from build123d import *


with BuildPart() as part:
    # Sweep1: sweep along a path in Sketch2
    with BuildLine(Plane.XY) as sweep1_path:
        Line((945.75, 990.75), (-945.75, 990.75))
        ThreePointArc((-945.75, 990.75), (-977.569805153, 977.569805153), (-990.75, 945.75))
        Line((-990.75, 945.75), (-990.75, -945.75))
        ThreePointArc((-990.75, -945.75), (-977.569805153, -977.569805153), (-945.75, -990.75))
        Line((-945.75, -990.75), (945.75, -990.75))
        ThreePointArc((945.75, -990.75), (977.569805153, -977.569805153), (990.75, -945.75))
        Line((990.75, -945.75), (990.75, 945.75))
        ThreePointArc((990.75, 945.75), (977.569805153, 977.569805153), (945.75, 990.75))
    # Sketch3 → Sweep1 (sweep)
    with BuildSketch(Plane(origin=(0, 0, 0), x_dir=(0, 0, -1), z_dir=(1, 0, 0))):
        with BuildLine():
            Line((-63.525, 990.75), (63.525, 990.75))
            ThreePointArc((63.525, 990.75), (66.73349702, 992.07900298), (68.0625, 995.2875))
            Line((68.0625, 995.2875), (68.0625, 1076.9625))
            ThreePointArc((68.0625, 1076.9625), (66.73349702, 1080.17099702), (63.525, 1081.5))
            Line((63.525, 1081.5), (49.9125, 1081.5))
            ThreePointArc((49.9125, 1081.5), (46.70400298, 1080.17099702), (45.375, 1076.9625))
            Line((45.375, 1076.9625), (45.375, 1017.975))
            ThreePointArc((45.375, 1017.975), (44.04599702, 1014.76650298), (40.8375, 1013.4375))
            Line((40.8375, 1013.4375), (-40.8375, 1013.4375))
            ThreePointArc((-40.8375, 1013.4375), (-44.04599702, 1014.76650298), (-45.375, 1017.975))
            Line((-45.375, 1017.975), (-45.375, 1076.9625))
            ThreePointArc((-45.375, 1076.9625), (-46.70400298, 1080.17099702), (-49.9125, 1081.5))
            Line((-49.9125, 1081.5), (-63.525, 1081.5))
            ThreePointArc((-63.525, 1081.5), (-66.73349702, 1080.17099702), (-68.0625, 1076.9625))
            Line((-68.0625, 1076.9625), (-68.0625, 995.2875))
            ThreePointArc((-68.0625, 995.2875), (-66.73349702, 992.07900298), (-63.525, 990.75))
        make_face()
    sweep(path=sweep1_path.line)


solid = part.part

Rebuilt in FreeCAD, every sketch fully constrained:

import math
import FreeCAD as App
import Part
import Sketcher
Q = App.Units.Quantity

doc = App.newDocument("Part")
body = doc.addObject("PartDesign::Body", "Body")

# Sketch on YZ plane
sketch1 = doc.addObject("Sketcher::SketchObject", "Sketch")
body.addObject(sketch1)
sketch1.AttachmentSupport = (doc.YZ_Plane, [""])
sketch1.MapMode = "FlatFace"
sketch1.addGeometry([
    Part.LineSegment(App.Vector(990.75, 63.525, 0), App.Vector(990.75, -63.525, 0)),  # 0
    Part.ArcOfCircle(Part.Circle(App.Vector(995.2875, -63.525, 0), App.Vector(0, 0, 1), 4.5375), math.radians(180), math.radians(270)),  # 1
    Part.LineSegment(App.Vector(995.2875, -68.0625, 0), App.Vector(1076.9625, -68.0625, 0)),  # 2
    Part.ArcOfCircle(Part.Circle(App.Vector(1076.9625, -63.525, 0), App.Vector(0, 0, 1), 4.5375), math.radians(-90), math.radians(0)),  # 3
    Part.LineSegment(App.Vector(1081.5, -63.525, 0), App.Vector(1081.5, -49.9125, 0)),  # 4
    Part.ArcOfCircle(Part.Circle(App.Vector(1076.9625, -49.9125, 0), App.Vector(0, 0, 1), 4.5375), math.radians(0), math.radians(90)),  # 5
    Part.LineSegment(App.Vector(1076.9625, -45.375, 0), App.Vector(1017.975, -45.375, 0)),  # 6
    Part.ArcOfCircle(Part.Circle(App.Vector(1017.975, -40.8375, 0), App.Vector(0, 0, 1), 4.5375), math.radians(180), math.radians(270)),  # 7
    Part.LineSegment(App.Vector(1013.4375, -40.8375, 0), App.Vector(1013.4375, 40.8375, 0)),  # 8
    Part.ArcOfCircle(Part.Circle(App.Vector(1017.975, 40.8375, 0), App.Vector(0, 0, 1), 4.5375), math.radians(90), math.radians(180)),  # 9
    Part.LineSegment(App.Vector(1017.975, 45.375, 0), App.Vector(1076.9625, 45.375, 0)),  # 10
    Part.ArcOfCircle(Part.Circle(App.Vector(1076.9625, 49.9125, 0), App.Vector(0, 0, 1), 4.5375), math.radians(-90), math.radians(0)),  # 11
    Part.LineSegment(App.Vector(1081.5, 49.9125, 0), App.Vector(1081.5, 63.525, 0)),  # 12
    Part.ArcOfCircle(Part.Circle(App.Vector(1076.9625, 63.525, 0), App.Vector(0, 0, 1), 4.5375), math.radians(0), math.radians(90)),  # 13
    Part.LineSegment(App.Vector(1076.9625, 68.0625, 0), App.Vector(995.2875, 68.0625, 0)),  # 14
    Part.ArcOfCircle(Part.Circle(App.Vector(995.2875, 63.525, 0), App.Vector(0, 0, 1), 4.5375), math.radians(90), math.radians(180)),  # 15
], False)
sketch1.addConstraint([
    Sketcher.Constraint("Tangent", 0, 2, 1, 1),
    Sketcher.Constraint("Tangent", 1, 2, 2, 1),
    Sketcher.Constraint("Tangent", 2, 2, 3, 1),
    Sketcher.Constraint("Tangent", 3, 2, 4, 1),
    Sketcher.Constraint("Tangent", 4, 2, 5, 1),
    Sketcher.Constraint("Tangent", 5, 2, 6, 1),
    Sketcher.Constraint("Tangent", 6, 2, 7, 2),
    Sketcher.Constraint("Tangent", 7, 1, 8, 1),
    Sketcher.Constraint("Tangent", 8, 2, 9, 2),
    Sketcher.Constraint("Tangent", 9, 1, 10, 1),
    Sketcher.Constraint("Tangent", 10, 2, 11, 1),
    Sketcher.Constraint("Tangent", 11, 2, 12, 1),
    Sketcher.Constraint("Tangent", 12, 2, 13, 1),
    Sketcher.Constraint("Tangent", 13, 2, 14, 1),
    Sketcher.Constraint("Tangent", 14, 2, 15, 1),
    Sketcher.Constraint("Tangent", 15, 2, 0, 1),
    Sketcher.Constraint("Vertical", 0),
    Sketcher.Constraint("Horizontal", 2),
    Sketcher.Constraint("Vertical", 4),
    Sketcher.Constraint("Horizontal", 6),
    Sketcher.Constraint("Vertical", 8),
    Sketcher.Constraint("Horizontal", 10),
    Sketcher.Constraint("Vertical", 12),
    Sketcher.Constraint("Horizontal", 14),
    Sketcher.Constraint("Equal", 1, 3),
    Sketcher.Constraint("Equal", 3, 5),
    Sketcher.Constraint("Equal", 5, 7),
    Sketcher.Constraint("Equal", 7, 9),
    Sketcher.Constraint("Equal", 9, 11),
    Sketcher.Constraint("Equal", 11, 13),
    Sketcher.Constraint("Equal", 13, 15),
    Sketcher.Constraint("Symmetric", 5, 3, 11, 3, -1),
    Sketcher.Constraint("Equal", 14, 8),
    Sketcher.Constraint("Equal", 4, 12),
    Sketcher.Constraint("DistanceY", 0, 2, 0, 1, Q("127.05 mm")),
    Sketcher.Constraint("DistanceX", -1, 1, 3, 2, Q("1081.5 mm")),
    Sketcher.Constraint("Radius", 1, Q("4.5375 mm")),
    Sketcher.Constraint("DistanceX", 2, 1, 2, 2, Q("81.675 mm")),
    Sketcher.Constraint("DistanceX", 1, 3, 7, 1, Q("18.15 mm")),
])

# Sketch on XY plane
sketch2 = doc.addObject("Sketcher::SketchObject", "Sketch001")
body.addObject(sketch2)
sketch2.AttachmentSupport = (doc.XY_Plane, [""])
sketch2.MapMode = "FlatFace"
sketch2.addGeometry([
    Part.LineSegment(App.Vector(945.75, 990.75, 0), App.Vector(-945.75, 990.75, 0)),  # 0
    Part.ArcOfCircle(Part.Circle(App.Vector(-945.75, 945.75, 0), App.Vector(0, 0, 1), 45), math.radians(90), math.radians(180)),  # 1
    Part.LineSegment(App.Vector(-990.75, 945.75, 0), App.Vector(-990.75, -945.75, 0)),  # 2
    Part.ArcOfCircle(Part.Circle(App.Vector(-945.75, -945.75, 0), App.Vector(0, 0, 1), 45), math.radians(-180), math.radians(-90)),  # 3
    Part.LineSegment(App.Vector(-945.75, -990.75, 0), App.Vector(945.75, -990.75, 0)),  # 4
    Part.ArcOfCircle(Part.Circle(App.Vector(945.75, -945.75, 0), App.Vector(0, 0, 1), 45), math.radians(-90), math.radians(0)),  # 5
    Part.LineSegment(App.Vector(990.75, -945.75, 0), App.Vector(990.75, 945.75, 0)),  # 6
    Part.ArcOfCircle(Part.Circle(App.Vector(945.75, 945.75, 0), App.Vector(0, 0, 1), 45), math.radians(0), math.radians(90)),  # 7
], False)
sketch2.addConstraint([
    Sketcher.Constraint("Tangent", 0, 2, 1, 1),
    Sketcher.Constraint("Tangent", 1, 2, 2, 1),
    Sketcher.Constraint("Tangent", 2, 2, 3, 1),
    Sketcher.Constraint("Tangent", 3, 2, 4, 1),
    Sketcher.Constraint("Tangent", 4, 2, 5, 1),
    Sketcher.Constraint("Tangent", 5, 2, 6, 1),
    Sketcher.Constraint("Tangent", 6, 2, 7, 1),
    Sketcher.Constraint("Tangent", 7, 2, 0, 1),
    Sketcher.Constraint("Horizontal", 0),
    Sketcher.Constraint("Vertical", 2),
    Sketcher.Constraint("Horizontal", 4),
    Sketcher.Constraint("Vertical", 6),
    Sketcher.Constraint("Equal", 1, 3),
    Sketcher.Constraint("Equal", 3, 5),
    Sketcher.Constraint("Equal", 5, 7),
    Sketcher.Constraint("Symmetric", 1, 3, 5, 3, -1, 1),
    Sketcher.Constraint("Equal", 4, 2),
    Sketcher.Constraint("Radius", 1, Q("45 mm")),
    Sketcher.Constraint("DistanceX", 0, 2, 0, 1, Q("1891.5 mm")),
])
doc.recompute()

additivepipe = doc.addObject("PartDesign::AdditivePipe", "AdditivePipe")
body.addObject(additivepipe)
additivepipe.Profile = sketch1
additivepipe.Spine = (sketch2, ["Edge1", "Edge2", "Edge3", "Edge4", "Edge5", "Edge6", "Edge7", "Edge8"])

doc.recompute()
